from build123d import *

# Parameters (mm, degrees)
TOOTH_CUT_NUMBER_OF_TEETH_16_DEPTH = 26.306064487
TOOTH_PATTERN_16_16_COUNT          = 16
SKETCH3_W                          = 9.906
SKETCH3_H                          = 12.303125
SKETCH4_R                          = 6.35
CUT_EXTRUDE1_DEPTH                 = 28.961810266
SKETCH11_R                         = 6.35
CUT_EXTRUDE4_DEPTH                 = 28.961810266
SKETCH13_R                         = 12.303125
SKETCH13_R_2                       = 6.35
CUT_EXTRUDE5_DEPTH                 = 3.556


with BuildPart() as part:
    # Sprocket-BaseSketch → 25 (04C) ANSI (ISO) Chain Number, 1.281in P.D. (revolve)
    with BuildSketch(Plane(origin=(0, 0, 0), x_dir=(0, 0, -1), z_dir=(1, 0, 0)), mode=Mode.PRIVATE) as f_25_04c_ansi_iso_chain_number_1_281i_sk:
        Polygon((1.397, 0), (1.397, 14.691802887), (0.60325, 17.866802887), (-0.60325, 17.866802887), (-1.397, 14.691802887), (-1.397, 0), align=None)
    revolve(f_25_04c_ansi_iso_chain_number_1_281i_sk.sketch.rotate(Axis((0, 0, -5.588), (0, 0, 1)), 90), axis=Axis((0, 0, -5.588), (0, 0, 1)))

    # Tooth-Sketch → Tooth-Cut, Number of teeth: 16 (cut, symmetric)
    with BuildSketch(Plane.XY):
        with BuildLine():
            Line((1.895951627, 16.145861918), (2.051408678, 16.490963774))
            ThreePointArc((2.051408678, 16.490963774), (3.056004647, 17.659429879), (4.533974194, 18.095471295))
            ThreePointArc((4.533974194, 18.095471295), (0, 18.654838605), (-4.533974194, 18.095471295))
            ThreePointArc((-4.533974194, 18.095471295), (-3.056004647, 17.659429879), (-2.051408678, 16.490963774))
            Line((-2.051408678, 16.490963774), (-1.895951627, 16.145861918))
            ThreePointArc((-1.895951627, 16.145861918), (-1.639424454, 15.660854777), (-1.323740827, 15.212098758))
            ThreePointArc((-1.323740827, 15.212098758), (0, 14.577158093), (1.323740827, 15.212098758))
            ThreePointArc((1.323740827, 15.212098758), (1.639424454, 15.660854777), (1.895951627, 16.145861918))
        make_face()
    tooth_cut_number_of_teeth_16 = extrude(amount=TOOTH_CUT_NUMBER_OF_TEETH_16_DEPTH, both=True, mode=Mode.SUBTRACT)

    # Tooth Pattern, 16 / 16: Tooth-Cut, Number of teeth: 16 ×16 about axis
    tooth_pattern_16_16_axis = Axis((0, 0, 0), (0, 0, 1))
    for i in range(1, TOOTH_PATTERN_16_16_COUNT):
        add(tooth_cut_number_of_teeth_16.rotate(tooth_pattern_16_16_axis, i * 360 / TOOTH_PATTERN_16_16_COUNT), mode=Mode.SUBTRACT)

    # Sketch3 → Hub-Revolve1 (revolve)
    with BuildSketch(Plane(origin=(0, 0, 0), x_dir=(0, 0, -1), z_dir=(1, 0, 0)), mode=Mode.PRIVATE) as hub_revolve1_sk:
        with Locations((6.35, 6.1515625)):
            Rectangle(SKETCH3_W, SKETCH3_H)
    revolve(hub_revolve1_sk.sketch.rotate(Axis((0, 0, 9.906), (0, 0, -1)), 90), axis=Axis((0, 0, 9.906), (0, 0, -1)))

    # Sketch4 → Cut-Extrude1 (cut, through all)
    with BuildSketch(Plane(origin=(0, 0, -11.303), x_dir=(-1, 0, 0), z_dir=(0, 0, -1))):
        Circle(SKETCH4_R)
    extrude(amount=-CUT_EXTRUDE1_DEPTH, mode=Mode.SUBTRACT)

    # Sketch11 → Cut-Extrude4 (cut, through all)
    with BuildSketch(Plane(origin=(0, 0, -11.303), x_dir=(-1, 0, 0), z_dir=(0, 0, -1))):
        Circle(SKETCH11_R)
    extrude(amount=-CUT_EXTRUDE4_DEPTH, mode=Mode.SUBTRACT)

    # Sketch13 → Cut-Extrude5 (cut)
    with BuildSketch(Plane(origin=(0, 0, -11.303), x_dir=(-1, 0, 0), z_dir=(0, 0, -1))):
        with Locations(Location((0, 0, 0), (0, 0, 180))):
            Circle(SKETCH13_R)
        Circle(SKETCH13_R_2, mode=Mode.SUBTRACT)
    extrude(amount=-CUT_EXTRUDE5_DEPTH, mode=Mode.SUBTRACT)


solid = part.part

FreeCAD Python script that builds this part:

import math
import FreeCAD as App
import Part
import Sketcher
from FreeCAD import Vector
Q = App.Units.Quantity

doc = App.newDocument("Part")
body = doc.addObject("PartDesign::Body", "Body")

# Sketch on YZ plane
sketch1 = body.newObject("Sketcher::SketchObject", "Sketch")
sketch1.AttachmentSupport = (doc.getObject("YZ_Plane"), [""])
sketch1.MapMode = "FlatFace"
sketch1.addGeometry([
    Part.LineSegment(Vector(0, -1.4, 0), Vector(14.7, -1.4, 0)),  # 0
    Part.LineSegment(Vector(14.7, -1.4, 0), Vector(17.9, -0.6, 0)),  # 1
    Part.LineSegment(Vector(17.9, -0.6, 0), Vector(17.9, 0.6, 0)),  # 2
    Part.LineSegment(Vector(17.9, 0.6, 0), Vector(14.7, 1.4, 0)),  # 3
    Part.LineSegment(Vector(14.7, 1.4, 0), Vector(0, 1.4, 0)),  # 4
    Part.LineSegment(Vector(0, 1.4, 0), Vector(0, -1.4, 0)),  # 5
], False)
sketch1.addConstraint([
    Sketcher.Constraint("Coincident", 0, 2, 1, 1),
    Sketcher.Constraint("Coincident", 1, 2, 2, 1),
    Sketcher.Constraint("Coincident", 2, 2, 3, 1),
    Sketcher.Constraint("Coincident", 3, 2, 4, 1),
    Sketcher.Constraint("Coincident", 4, 2, 5, 1),
    Sketcher.Constraint("Coincident", 5, 2, 0, 1),
    Sketcher.Constraint("Horizontal", 0),
    Sketcher.Constraint("Vertical", 2),
    Sketcher.Constraint("Horizontal", 4),
    Sketcher.Constraint("Vertical", 5),
    Sketcher.Constraint("Symmetric", 4, 2, 5, 2, -1, 1),
    Sketcher.Constraint("Vertical", 0, 2, 3, 2),
    Sketcher.Constraint("Equal", 1, 3),
    Sketcher.Constraint("DistanceY", 5, 2, 5, 1, Q("0.11 in")),
    Sketcher.Constraint("DistanceY", 2, 1, 2, 2, Q("0.0475 in")),
    Sketcher.Constraint("DistanceX", 0, 2, 1, 2, Q("0.125 in")),
    Sketcher.Constraint("DistanceX", 0, 1, 0, 2, 14.691803),
])
revolution = body.newObject("PartDesign::Revolution", "Revolution")
revolution.Profile = sketch1
revolution.ReferenceAxis = (sketch1, ["V_Axis"])
revolution.Angle = 360

# Sketch on XY plane
sketch2 = body.newObject("Sketcher::SketchObject", "Sketch001")
sketch2.AttachmentSupport = (doc.getObject("XY_Plane"), [""])
sketch2.MapMode = "FlatFace"
sketch2.addGeometry([
    Part.LineSegment(Vector(1.9, 16.15, 0), Vector(2.05, 16.49, 0)),  # 0
    Part.ArcOfCircle(Part.Circle(Vector(4.53, 15.37, 0), Vector(0, 0, 1), 2.72), math.radians(90), math.radians(156)),  # 1
    Part.ArcOfCircle(Part.Circle(Vector(0, 0, 0), Vector(0, 0, 1), 18.65), math.radians(76), math.radians(104)),  # 2
    Part.ArcOfCircle(Part.Circle(Vector(-4.53, 15.37, 0), Vector(0, 0, 1), 2.72), math.radians(24), math.radians(90)),  # 3
    Part.LineSegment(Vector(-2.05, 16.49, 0), Vector(-1.9, 16.15, 0)),  # 4
    Part.ArcOfCircle(Part.Circle(Vector(2.06, 17.93, 0), Vector(0, 0, 1), 4.34), math.radians(-155.75), math.radians(-141.25)),  # 5
    Part.ArcOfCircle(Part.Circle(Vector(0, 16.27, 0), Vector(0, 0, 1), 1.7), math.radians(-141), math.radians(-39)),  # 6
    Part.ArcOfCircle(Part.Circle(Vector(-2.06, 17.93, 0), Vector(0, 0, 1), 4.34), math.radians(-38.75), math.radians(-24.25)),  # 7
], False)
sketch2.addConstraint([
    Sketcher.Constraint("Tangent", 0, 2, 1, 2),
    Sketcher.Constraint("Coincident", 1, 1, 2, 1),
    Sketcher.Constraint("Coincident", 2, 2, 3, 2),
    Sketcher.Constraint("Tangent", 3, 1, 4, 1),
    Sketcher.Constraint("Tangent", 4, 2, 5, 1),
    Sketcher.Constraint("Tangent", 5, 2, 6, 1),
    Sketcher.Constraint("Tangent", 6, 2, 7, 1),
    Sketcher.Constraint("Tangent", 7, 2, 0, 1),
    Sketcher.Constraint("Coincident", 2, 3, -1, 1),
    Sketcher.Constraint("Equal", 1, 3),
    Sketcher.Constraint("Equal", 5, 7),
    Sketcher.Constraint("Symmetric", 1, 3, 3, 3, -2),
    Sketcher.Constraint("Symmetric", 5, 3, 7, 3, -2),
    Sketcher.Constraint("Vertical", 3, 3, 2, 2),
    Sketcher.Constraint("Angle", 0, Q("65.75 deg")),
    Sketcher.Constraint("Radius", 1, 2.722822),
    Sketcher.Constraint("Radius", 2, 18.654839),
    Sketcher.Constraint("Radius", 5, 4.338955),
    Sketcher.Constraint("Radius", 6, 1.697355),
    Sketcher.Constraint("Distance", 0, 0.3785),
    Sketcher.Constraint("DistanceY", -1, 1, 5, 2, 15.212099),
])
pocket1 = body.newObject("PartDesign::Pocket", "Pocket")
pocket1.Profile = sketch2
pocket1.Length = 52.612129
pocket1.Midplane = True
doc.recompute()

polarpattern = body.newObject("PartDesign::PolarPattern", "PolarPattern")
polarpattern.Originals = [pocket1]
polarpattern.Axis = (doc.getObject("Z_Axis"), [""])
polarpattern.Angle = 360
polarpattern.Occurrences = 16
body.Tip = polarpattern

# Sketch on YZ plane
sketch3 = body.newObject("Sketcher::SketchObject", "Sketch002")
sketch3.AttachmentSupport = (doc.getObject("YZ_Plane"), [""])
sketch3.MapMode = "FlatFace"
sketch3.addGeometry([
    Part.LineSegment(Vector(12, -1, 0), Vector(0, -1, 0)),
    Part.LineSegment(Vector(0, -1, 0), Vector(0, -11, 0)),
    Part.LineSegment(Vector(0, -11, 0), Vector(12, -11, 0)),
    Part.LineSegment(Vector(12, -11, 0), Vector(12, -1, 0)),
], False)
sketch3.addConstraint([
    Sketcher.Constraint("Coincident", 0, 2, 1, 1),
    Sketcher.Constraint("Coincident", 1, 2, 2, 1),
    Sketcher.Constraint("Coincident", 2, 2, 3, 1),
    Sketcher.Constraint("Coincident", 3, 2, 0, 1),
    Sketcher.Constraint("Horizontal", 0),
    Sketcher.Constraint("Vertical", 1),
    Sketcher.Constraint("Horizontal", 2),
    Sketcher.Constraint("Vertical", 3),
    Sketcher.Constraint("PointOnObject", 0, 2, -2),
    Sketcher.Constraint("DistanceY", 1, 2, 1, 1, Q("0.39 in")),
    Sketcher.Constraint("DistanceX", 0, 2, 0, 1, Q("0.484375 in")),
    Sketcher.Constraint("DistanceY", 0, 2, -1, 1, Q("0.055 in")),
])
revolution2 = body.newObject("PartDesign::Revolution", "Revolution001")
revolution2.Profile = sketch3
revolution2.ReferenceAxis = (sketch3, ["V_Axis"])
revolution2.Angle = 360

# Sketch on XY plane
sketch4 = body.newObject("Sketcher::SketchObject", "Sketch003")
sketch4.AttachmentSupport = (doc.getObject("XY_Plane"), [""])
sketch4.MapMode = "FlatFace"
sketch4.AttachmentOffset = App.Placement(Vector(0, 0, -0.445 * 25.4), App.Rotation())
sketch4.addGeometry(Part.Circle(Vector(0, 0, 0), Vector(0, 0, 1), 6), False)
sketch4.addConstraint([
    Sketcher.Constraint("Coincident", 0, 3, -1, 1),
    Sketcher.Constraint("Diameter", 0, Q("0.5 in")),
])
pocket2 = body.newObject("PartDesign::Pocket", "Pocket001")
pocket2.Profile = sketch4
pocket2.Type = "ThroughAll"
pocket2.Reversed = True

# Sketch on XY plane
sketch5 = body.newObject("Sketcher::SketchObject", "Sketch004")
sketch5.AttachmentSupport = (doc.getObject("XY_Plane"), [""])
sketch5.MapMode = "FlatFace"
sketch5.AttachmentOffset = App.Placement(Vector(0, 0, -0.445 * 25.4), App.Rotation())
sketch5.addGeometry(Part.Circle(Vector(0, 0, 0), Vector(0, 0, 1), 6), False)
sketch5.addConstraint([
    Sketcher.Constraint("Coincident", 0, 3, -1, 1),
    Sketcher.Constraint("Diameter", 0, Q("0.5 in")),
])
pocket3 = body.newObject("PartDesign::Pocket", "Pocket002")
pocket3.Profile = sketch5
pocket3.Type = "ThroughAll"
pocket3.Reversed = True

# Sketch on XY plane
sketch6 = body.newObject("Sketcher::SketchObject", "Sketch005")
sketch6.AttachmentSupport = (doc.getObject("XY_Plane"), [""])
sketch6.MapMode = "FlatFace"
sketch6.AttachmentOffset = App.Placement(Vector(0, 0, -0.445 * 25.4), App.Rotation())
sketch6.addGeometry([
    Part.Circle(Vector(0, 0, 0), Vector(0, 0, 1), 12),
    Part.Circle(Vector(0, 0, 0), Vector(0, 0, 1), 6),
], False)
sketch6.addConstraint([
    Sketcher.Constraint("Coincident", 0, 3, -1, 1),
    Sketcher.Constraint("Coincident", 1, 3, -1, 1),
    Sketcher.Constraint("Diameter", 1, Q("0.5 in")),
    Sketcher.Constraint("Diameter", 0, Q("0.96875 in")),
])
pocket4 = body.newObject("PartDesign::Pocket", "Pocket003")
pocket4.Profile = sketch6
pocket4.Length = Q("0.14 in")
pocket4.Reversed = True

doc.recompute()
